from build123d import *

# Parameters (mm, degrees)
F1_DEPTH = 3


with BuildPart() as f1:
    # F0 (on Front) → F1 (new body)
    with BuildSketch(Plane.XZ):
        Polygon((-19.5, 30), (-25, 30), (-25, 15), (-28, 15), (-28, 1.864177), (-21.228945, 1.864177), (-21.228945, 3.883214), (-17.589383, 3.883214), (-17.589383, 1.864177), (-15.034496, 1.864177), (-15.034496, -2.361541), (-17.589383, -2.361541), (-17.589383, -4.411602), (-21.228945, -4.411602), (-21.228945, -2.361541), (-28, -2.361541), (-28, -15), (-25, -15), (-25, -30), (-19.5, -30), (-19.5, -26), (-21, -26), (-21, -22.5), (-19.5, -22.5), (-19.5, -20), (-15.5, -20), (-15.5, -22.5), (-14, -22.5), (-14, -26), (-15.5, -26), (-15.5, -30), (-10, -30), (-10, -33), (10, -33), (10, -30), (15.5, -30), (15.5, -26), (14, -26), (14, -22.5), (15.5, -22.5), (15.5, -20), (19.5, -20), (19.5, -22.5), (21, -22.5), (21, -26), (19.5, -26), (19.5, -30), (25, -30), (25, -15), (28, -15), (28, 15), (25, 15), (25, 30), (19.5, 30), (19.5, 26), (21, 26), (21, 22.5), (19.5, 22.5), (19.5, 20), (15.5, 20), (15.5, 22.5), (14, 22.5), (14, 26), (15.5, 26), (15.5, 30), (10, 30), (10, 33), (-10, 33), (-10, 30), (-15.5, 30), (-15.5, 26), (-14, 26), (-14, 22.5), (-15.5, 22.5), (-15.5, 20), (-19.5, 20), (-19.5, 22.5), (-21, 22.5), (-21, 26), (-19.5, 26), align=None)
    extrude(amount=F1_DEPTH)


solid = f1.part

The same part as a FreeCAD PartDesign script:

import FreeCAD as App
import Part
import Sketcher

V = App.Vector
Q = App.Units.Quantity


def add_polygon(sketch, points):
    """Adds a closed chain of lines whose ends are joined by coincident constraints."""
    first, n = sketch.GeometryCount, len(points)
    for a, b in zip(points, points[1:] + points[:1]):
        sketch.addGeometry(Part.LineSegment(App.Vector(*a, 0), App.Vector(*b, 0)), False)
    for i in range(n):
        sketch.addConstraint(Sketcher.Constraint("Coincident", first + i, 2, first + (i + 1) % n, 1))

doc = App.newDocument("Part")
body = doc.addObject("PartDesign::Body", "Body")

# Sketch on XZ plane
sketch1 = body.newObject("Sketcher::SketchObject", "Sketch")
sketch1.AttachmentSupport = (doc.getObject("XZ_Plane"), [""])
sketch1.MapMode = "FlatFace"
add_polygon(sketch1, [(-19.5, 30), (-25, 30), (-25, 15), (-28, 15), (-28, 1.9), (-21.2, 1.9), (-21.2, 3.9), (-17.6, 3.9), (-17.6, 1.9), (-15, 1.9), (-15, -2.4), (-17.6, -2.4), (-17.6, -4.4), (-21.2, -4.4), (-21.2, -2.4), (-28, -2.4), (-28, -15), (-25, -15), (-25, -30), (-19.5, -30), (-19.5, -26), (-21, -26), (-21, -22.5), (-19.5, -22.5), (-19.5, -20), (-15.5, -20), (-15.5, -22.5), (-14, -22.5), (-14, -26), (-15.5, -26), (-15.5, -30), (-10, -30), (-10, -33), (10, -33), (10, -30), (15.5, -30), (15.5, -26), (14, -26), (14, -22.5), (15.5, -22.5), (15.5, -20), (19.5, -20), (19.5, -22.5), (21, -22.5), (21, -26), (19.5, -26), (19.5, -30), (25, -30), (25, -15), (28, -15), (28, 15), (25, 15), (25, 30), (19.5, 30), (19.5, 26), (21, 26), (21, 22.5), (19.5, 22.5), (19.5, 20), (15.5, 20), (15.5, 22.5), (14, 22.5), (14, 26), (15.5, 26), (15.5, 30), (10, 30), (10, 33), (-10, 33), (-10, 30), (-15.5, 30), (-15.5, 26), (-14, 26), (-14, 22.5), (-15.5, 22.5), (-15.5, 20), (-19.5, 20), (-19.5, 22.5), (-21, 22.5), (-21, 26), (-19.5, 26)])  # lines 0-79
sketch1.addConstraint([
    Sketcher.Constraint("Horizontal", 0),
    Sketcher.Constraint("Vertical", 1),
    Sketcher.Constraint("Horizontal", 2),
    Sketcher.Constraint("Vertical", 3),
    Sketcher.Constraint("Horizontal", 4),
    Sketcher.Constraint("Vertical", 5),
    Sketcher.Constraint("Horizontal", 6),
    Sketcher.Constraint("Vertical", 7),
    Sketcher.Constraint("Horizontal", 8),
    Sketcher.Constraint("Vertical", 9),
    Sketcher.Constraint("Horizontal", 10),
    Sketcher.Constraint("Vertical", 11),
    Sketcher.Constraint("Horizontal", 12),
    Sketcher.Constraint("Vertical", 13),
    Sketcher.Constraint("Horizontal", 14),
    Sketcher.Constraint("Vertical", 15),
    Sketcher.Constraint("Horizontal", 16),
    Sketcher.Constraint("Vertical", 17),
    Sketcher.Constraint("Horizontal", 18),
    Sketcher.Constraint("Vertical", 19),
    Sketcher.Constraint("Horizontal", 20),
    Sketcher.Constraint("Vertical", 21),
    Sketcher.Constraint("Horizontal", 22),
    Sketcher.Constraint("Vertical", 23),
    Sketcher.Constraint("Horizontal", 24),
    Sketcher.Constraint("Vertical", 25),
    Sketcher.Constraint("Horizontal", 26),
    Sketcher.Constraint("Vertical", 27),
    Sketcher.Constraint("Horizontal", 28),
    Sketcher.Constraint("Vertical", 29),
    Sketcher.Constraint("Horizontal", 30),
    Sketcher.Constraint("Vertical", 31),
    Sketcher.Constraint("Horizontal", 32),
    Sketcher.Constraint("Vertical", 33),
    Sketcher.Constraint("Horizontal", 34),
    Sketcher.Constraint("Vertical", 35),
    Sketcher.Constraint("Horizontal", 36),
    Sketcher.Constraint("Vertical", 37),
    Sketcher.Constraint("Horizontal", 38),
    Sketcher.Constraint("Vertical", 39),
    Sketcher.Constraint("Horizontal", 40),
    Sketcher.Constraint("Vertical", 41),
    Sketcher.Constraint("Horizontal", 42),
    Sketcher.Constraint("Vertical", 43),
    Sketcher.Constraint("Horizontal", 44),
    Sketcher.Constraint("Vertical", 45),
    Sketcher.Constraint("Horizontal", 46),
    Sketcher.Constraint("Vertical", 47),
    Sketcher.Constraint("Horizontal", 48),
    Sketcher.Constraint("Vertical", 49),
    Sketcher.Constraint("Horizontal", 50),
    Sketcher.Constraint("Vertical", 51),
    Sketcher.Constraint("Horizontal", 52),
    Sketcher.Constraint("Vertical", 53),
    Sketcher.Constraint("Horizontal", 54),
    Sketcher.Constraint("Vertical", 55),
    Sketcher.Constraint("Horizontal", 56),
    Sketcher.Constraint("Vertical", 57),
    Sketcher.Constraint("Horizontal", 58),
    Sketcher.Constraint("Vertical", 59),
    Sketcher.Constraint("Horizontal", 60),
    Sketcher.Constraint("Vertical", 61),
    Sketcher.Constraint("Horizontal", 62),
    Sketcher.Constraint("Vertical", 63),
    Sketcher.Constraint("Horizontal", 64),
    Sketcher.Constraint("Vertical", 65),
    Sketcher.Constraint("Horizontal", 66),
    Sketcher.Constraint("Vertical", 67),
    Sketcher.Constraint("Horizontal", 68),
    Sketcher.Constraint("Vertical", 69),
    Sketcher.Constraint("Horizontal", 70),
    Sketcher.Constraint("Vertical", 71),
    Sketcher.Constraint("Horizontal", 72),
    Sketcher.Constraint("Vertical", 73),
    Sketcher.Constraint("Horizontal", 74),
    Sketcher.Constraint("Vertical", 75),
    Sketcher.Constraint("Horizontal", 76),
    Sketcher.Constraint("Vertical", 77),
    Sketcher.Constraint("Horizontal", 78),
    Sketcher.Constraint("Vertical", 79),
    Sketcher.Constraint("Symmetric", 0, 2, 46, 2, -1, 1),
    Sketcher.Constraint("Symmetric", 2, 2, 48, 2, -1, 1),
    Sketcher.Constraint("Symmetric", 15, 2, 49, 2, -1, 1),
    Sketcher.Constraint("Symmetric", 17, 2, 51, 2, -1, 1),
    Sketcher.Constraint("Symmetric", 19, 2, 53, 2, -1, 1),
    Sketcher.Constraint("Symmetric", 21, 2, 55, 2, -1, 1),
    Sketcher.Constraint("Symmetric", 23, 2, 57, 2, -1, 1),
    Sketcher.Constraint("Symmetric", 25, 2, 59, 2, -1, 1),
    Sketcher.Constraint("Symmetric", 27, 2, 61, 2, -1, 1),
    Sketcher.Constraint("Symmetric", 29, 2, 63, 2, -1, 1),
    Sketcher.Constraint("Symmetric", 31, 2, 65, 2, -1, 1),
    Sketcher.Constraint("Symmetric", 33, 2, 67, 2, -1, 1),
    Sketcher.Constraint("Symmetric", 35, 2, 69, 2, -1, 1),
    Sketcher.Constraint("Symmetric", 37, 2, 71, 2, -1, 1),
    Sketcher.Constraint("Symmetric", 39, 2, 73, 2, -1, 1),
    Sketcher.Constraint("Symmetric", 41, 2, 75, 2, -1, 1),
    Sketcher.Constraint("Symmetric", 43, 2, 77, 2, -1, 1),
    Sketcher.Constraint("Symmetric", 30, 2, 33, 2, -2),
    Sketcher.Constraint("Symmetric", 28, 2, 35, 2, -2),
    Sketcher.Constraint("Symmetric", 26, 2, 37, 2, -2),
    Sketcher.Constraint("Symmetric", 24, 2, 39, 2, -2),
    Sketcher.Constraint("Symmetric", 22, 2, 41, 2, -2),
    Sketcher.Constraint("Symmetric", 20, 2, 43, 2, -2),
    Sketcher.Constraint("Symmetric", 18, 2, 45, 2, -2),
    Sketcher.Constraint("Symmetric", 16, 2, 47, 2, -2),
    Sketcher.Constraint("Horizontal", 4, 2, 7, 2),
    Sketcher.Constraint("Horizontal", 10, 2, 13, 2),
    Sketcher.Constraint("Horizontal", 22, 2, 25, 2),
    Sketcher.Constraint("Horizontal", 20, 2, 27, 2),
    Sketcher.Constraint("Horizontal", 18, 2, 29, 2),
    Sketcher.Constraint("Vertical", 7, 2, 10, 2),
    Sketcher.Constraint("Vertical", 5, 2, 12, 2),
    Sketcher.Constraint("Vertical", 19, 2, 22, 2),
    Sketcher.Constraint("Vertical", 25, 2, 28, 2),
    Sketcher.Constraint("Vertical", 75, 2, 78, 2),
    Sketcher.Constraint("Equal", 22, 26),
    Sketcher.Constraint("Equal", 18, 30),
    Sketcher.Constraint("Equal", 74, 19),
    Sketcher.Constraint("Equal", 50, 31),
    Sketcher.Constraint("DistanceX", 2, 2, 2, 1, Q("3 mm")),
    Sketcher.Constraint("DistanceX", 24, 1, 24, 2, Q("4 mm")),
    Sketcher.Constraint("DistanceX", 32, 1, 32, 2, Q("20 mm")),
    Sketcher.Constraint("DistanceY", 1, 2, 1, 1, Q("15 mm")),
    Sketcher.Constraint("DistanceY", 49, 1, 49, 2, Q("30 mm")),
    Sketcher.Constraint("DistanceX", 0, 2, 0, 1, Q("5.5 mm")),
    Sketcher.Constraint("DistanceX", 20, 2, 20, 1, Q("1.5 mm")),
    Sketcher.Constraint("DistanceY", 21, 1, 21, 2, Q("3.5 mm")),
    Sketcher.Constraint("DistanceY", 23, 1, 23, 2, Q("2.5 mm")),
    Sketcher.Constraint("DistanceX", 6, 1, 6, 2, Q("3.639562 mm")),
    Sketcher.Constraint("DistanceY", 11, 2, 11, 1, Q("2.050061 mm")),
    Sketcher.Constraint("DistanceY", 15, 2, 15, 1, Q("12.638459 mm")),
    Sketcher.Constraint("DistanceX", 4, 1, 4, 2, Q("6.771055 mm")),
    Sketcher.Constraint("DistanceX", 8, 1, 8, 2, Q("2.554887 mm")),
    Sketcher.Constraint("DistanceY", 3, 2, 3, 1, Q("13.135823 mm")),
    Sketcher.Constraint("DistanceY", 5, 1, 5, 2, Q("2.019037 mm")),
])
pad1 = body.newObject("PartDesign::Pad", "Pad")
pad1.Profile = sketch1
pad1.Length = 3

doc.recompute()
